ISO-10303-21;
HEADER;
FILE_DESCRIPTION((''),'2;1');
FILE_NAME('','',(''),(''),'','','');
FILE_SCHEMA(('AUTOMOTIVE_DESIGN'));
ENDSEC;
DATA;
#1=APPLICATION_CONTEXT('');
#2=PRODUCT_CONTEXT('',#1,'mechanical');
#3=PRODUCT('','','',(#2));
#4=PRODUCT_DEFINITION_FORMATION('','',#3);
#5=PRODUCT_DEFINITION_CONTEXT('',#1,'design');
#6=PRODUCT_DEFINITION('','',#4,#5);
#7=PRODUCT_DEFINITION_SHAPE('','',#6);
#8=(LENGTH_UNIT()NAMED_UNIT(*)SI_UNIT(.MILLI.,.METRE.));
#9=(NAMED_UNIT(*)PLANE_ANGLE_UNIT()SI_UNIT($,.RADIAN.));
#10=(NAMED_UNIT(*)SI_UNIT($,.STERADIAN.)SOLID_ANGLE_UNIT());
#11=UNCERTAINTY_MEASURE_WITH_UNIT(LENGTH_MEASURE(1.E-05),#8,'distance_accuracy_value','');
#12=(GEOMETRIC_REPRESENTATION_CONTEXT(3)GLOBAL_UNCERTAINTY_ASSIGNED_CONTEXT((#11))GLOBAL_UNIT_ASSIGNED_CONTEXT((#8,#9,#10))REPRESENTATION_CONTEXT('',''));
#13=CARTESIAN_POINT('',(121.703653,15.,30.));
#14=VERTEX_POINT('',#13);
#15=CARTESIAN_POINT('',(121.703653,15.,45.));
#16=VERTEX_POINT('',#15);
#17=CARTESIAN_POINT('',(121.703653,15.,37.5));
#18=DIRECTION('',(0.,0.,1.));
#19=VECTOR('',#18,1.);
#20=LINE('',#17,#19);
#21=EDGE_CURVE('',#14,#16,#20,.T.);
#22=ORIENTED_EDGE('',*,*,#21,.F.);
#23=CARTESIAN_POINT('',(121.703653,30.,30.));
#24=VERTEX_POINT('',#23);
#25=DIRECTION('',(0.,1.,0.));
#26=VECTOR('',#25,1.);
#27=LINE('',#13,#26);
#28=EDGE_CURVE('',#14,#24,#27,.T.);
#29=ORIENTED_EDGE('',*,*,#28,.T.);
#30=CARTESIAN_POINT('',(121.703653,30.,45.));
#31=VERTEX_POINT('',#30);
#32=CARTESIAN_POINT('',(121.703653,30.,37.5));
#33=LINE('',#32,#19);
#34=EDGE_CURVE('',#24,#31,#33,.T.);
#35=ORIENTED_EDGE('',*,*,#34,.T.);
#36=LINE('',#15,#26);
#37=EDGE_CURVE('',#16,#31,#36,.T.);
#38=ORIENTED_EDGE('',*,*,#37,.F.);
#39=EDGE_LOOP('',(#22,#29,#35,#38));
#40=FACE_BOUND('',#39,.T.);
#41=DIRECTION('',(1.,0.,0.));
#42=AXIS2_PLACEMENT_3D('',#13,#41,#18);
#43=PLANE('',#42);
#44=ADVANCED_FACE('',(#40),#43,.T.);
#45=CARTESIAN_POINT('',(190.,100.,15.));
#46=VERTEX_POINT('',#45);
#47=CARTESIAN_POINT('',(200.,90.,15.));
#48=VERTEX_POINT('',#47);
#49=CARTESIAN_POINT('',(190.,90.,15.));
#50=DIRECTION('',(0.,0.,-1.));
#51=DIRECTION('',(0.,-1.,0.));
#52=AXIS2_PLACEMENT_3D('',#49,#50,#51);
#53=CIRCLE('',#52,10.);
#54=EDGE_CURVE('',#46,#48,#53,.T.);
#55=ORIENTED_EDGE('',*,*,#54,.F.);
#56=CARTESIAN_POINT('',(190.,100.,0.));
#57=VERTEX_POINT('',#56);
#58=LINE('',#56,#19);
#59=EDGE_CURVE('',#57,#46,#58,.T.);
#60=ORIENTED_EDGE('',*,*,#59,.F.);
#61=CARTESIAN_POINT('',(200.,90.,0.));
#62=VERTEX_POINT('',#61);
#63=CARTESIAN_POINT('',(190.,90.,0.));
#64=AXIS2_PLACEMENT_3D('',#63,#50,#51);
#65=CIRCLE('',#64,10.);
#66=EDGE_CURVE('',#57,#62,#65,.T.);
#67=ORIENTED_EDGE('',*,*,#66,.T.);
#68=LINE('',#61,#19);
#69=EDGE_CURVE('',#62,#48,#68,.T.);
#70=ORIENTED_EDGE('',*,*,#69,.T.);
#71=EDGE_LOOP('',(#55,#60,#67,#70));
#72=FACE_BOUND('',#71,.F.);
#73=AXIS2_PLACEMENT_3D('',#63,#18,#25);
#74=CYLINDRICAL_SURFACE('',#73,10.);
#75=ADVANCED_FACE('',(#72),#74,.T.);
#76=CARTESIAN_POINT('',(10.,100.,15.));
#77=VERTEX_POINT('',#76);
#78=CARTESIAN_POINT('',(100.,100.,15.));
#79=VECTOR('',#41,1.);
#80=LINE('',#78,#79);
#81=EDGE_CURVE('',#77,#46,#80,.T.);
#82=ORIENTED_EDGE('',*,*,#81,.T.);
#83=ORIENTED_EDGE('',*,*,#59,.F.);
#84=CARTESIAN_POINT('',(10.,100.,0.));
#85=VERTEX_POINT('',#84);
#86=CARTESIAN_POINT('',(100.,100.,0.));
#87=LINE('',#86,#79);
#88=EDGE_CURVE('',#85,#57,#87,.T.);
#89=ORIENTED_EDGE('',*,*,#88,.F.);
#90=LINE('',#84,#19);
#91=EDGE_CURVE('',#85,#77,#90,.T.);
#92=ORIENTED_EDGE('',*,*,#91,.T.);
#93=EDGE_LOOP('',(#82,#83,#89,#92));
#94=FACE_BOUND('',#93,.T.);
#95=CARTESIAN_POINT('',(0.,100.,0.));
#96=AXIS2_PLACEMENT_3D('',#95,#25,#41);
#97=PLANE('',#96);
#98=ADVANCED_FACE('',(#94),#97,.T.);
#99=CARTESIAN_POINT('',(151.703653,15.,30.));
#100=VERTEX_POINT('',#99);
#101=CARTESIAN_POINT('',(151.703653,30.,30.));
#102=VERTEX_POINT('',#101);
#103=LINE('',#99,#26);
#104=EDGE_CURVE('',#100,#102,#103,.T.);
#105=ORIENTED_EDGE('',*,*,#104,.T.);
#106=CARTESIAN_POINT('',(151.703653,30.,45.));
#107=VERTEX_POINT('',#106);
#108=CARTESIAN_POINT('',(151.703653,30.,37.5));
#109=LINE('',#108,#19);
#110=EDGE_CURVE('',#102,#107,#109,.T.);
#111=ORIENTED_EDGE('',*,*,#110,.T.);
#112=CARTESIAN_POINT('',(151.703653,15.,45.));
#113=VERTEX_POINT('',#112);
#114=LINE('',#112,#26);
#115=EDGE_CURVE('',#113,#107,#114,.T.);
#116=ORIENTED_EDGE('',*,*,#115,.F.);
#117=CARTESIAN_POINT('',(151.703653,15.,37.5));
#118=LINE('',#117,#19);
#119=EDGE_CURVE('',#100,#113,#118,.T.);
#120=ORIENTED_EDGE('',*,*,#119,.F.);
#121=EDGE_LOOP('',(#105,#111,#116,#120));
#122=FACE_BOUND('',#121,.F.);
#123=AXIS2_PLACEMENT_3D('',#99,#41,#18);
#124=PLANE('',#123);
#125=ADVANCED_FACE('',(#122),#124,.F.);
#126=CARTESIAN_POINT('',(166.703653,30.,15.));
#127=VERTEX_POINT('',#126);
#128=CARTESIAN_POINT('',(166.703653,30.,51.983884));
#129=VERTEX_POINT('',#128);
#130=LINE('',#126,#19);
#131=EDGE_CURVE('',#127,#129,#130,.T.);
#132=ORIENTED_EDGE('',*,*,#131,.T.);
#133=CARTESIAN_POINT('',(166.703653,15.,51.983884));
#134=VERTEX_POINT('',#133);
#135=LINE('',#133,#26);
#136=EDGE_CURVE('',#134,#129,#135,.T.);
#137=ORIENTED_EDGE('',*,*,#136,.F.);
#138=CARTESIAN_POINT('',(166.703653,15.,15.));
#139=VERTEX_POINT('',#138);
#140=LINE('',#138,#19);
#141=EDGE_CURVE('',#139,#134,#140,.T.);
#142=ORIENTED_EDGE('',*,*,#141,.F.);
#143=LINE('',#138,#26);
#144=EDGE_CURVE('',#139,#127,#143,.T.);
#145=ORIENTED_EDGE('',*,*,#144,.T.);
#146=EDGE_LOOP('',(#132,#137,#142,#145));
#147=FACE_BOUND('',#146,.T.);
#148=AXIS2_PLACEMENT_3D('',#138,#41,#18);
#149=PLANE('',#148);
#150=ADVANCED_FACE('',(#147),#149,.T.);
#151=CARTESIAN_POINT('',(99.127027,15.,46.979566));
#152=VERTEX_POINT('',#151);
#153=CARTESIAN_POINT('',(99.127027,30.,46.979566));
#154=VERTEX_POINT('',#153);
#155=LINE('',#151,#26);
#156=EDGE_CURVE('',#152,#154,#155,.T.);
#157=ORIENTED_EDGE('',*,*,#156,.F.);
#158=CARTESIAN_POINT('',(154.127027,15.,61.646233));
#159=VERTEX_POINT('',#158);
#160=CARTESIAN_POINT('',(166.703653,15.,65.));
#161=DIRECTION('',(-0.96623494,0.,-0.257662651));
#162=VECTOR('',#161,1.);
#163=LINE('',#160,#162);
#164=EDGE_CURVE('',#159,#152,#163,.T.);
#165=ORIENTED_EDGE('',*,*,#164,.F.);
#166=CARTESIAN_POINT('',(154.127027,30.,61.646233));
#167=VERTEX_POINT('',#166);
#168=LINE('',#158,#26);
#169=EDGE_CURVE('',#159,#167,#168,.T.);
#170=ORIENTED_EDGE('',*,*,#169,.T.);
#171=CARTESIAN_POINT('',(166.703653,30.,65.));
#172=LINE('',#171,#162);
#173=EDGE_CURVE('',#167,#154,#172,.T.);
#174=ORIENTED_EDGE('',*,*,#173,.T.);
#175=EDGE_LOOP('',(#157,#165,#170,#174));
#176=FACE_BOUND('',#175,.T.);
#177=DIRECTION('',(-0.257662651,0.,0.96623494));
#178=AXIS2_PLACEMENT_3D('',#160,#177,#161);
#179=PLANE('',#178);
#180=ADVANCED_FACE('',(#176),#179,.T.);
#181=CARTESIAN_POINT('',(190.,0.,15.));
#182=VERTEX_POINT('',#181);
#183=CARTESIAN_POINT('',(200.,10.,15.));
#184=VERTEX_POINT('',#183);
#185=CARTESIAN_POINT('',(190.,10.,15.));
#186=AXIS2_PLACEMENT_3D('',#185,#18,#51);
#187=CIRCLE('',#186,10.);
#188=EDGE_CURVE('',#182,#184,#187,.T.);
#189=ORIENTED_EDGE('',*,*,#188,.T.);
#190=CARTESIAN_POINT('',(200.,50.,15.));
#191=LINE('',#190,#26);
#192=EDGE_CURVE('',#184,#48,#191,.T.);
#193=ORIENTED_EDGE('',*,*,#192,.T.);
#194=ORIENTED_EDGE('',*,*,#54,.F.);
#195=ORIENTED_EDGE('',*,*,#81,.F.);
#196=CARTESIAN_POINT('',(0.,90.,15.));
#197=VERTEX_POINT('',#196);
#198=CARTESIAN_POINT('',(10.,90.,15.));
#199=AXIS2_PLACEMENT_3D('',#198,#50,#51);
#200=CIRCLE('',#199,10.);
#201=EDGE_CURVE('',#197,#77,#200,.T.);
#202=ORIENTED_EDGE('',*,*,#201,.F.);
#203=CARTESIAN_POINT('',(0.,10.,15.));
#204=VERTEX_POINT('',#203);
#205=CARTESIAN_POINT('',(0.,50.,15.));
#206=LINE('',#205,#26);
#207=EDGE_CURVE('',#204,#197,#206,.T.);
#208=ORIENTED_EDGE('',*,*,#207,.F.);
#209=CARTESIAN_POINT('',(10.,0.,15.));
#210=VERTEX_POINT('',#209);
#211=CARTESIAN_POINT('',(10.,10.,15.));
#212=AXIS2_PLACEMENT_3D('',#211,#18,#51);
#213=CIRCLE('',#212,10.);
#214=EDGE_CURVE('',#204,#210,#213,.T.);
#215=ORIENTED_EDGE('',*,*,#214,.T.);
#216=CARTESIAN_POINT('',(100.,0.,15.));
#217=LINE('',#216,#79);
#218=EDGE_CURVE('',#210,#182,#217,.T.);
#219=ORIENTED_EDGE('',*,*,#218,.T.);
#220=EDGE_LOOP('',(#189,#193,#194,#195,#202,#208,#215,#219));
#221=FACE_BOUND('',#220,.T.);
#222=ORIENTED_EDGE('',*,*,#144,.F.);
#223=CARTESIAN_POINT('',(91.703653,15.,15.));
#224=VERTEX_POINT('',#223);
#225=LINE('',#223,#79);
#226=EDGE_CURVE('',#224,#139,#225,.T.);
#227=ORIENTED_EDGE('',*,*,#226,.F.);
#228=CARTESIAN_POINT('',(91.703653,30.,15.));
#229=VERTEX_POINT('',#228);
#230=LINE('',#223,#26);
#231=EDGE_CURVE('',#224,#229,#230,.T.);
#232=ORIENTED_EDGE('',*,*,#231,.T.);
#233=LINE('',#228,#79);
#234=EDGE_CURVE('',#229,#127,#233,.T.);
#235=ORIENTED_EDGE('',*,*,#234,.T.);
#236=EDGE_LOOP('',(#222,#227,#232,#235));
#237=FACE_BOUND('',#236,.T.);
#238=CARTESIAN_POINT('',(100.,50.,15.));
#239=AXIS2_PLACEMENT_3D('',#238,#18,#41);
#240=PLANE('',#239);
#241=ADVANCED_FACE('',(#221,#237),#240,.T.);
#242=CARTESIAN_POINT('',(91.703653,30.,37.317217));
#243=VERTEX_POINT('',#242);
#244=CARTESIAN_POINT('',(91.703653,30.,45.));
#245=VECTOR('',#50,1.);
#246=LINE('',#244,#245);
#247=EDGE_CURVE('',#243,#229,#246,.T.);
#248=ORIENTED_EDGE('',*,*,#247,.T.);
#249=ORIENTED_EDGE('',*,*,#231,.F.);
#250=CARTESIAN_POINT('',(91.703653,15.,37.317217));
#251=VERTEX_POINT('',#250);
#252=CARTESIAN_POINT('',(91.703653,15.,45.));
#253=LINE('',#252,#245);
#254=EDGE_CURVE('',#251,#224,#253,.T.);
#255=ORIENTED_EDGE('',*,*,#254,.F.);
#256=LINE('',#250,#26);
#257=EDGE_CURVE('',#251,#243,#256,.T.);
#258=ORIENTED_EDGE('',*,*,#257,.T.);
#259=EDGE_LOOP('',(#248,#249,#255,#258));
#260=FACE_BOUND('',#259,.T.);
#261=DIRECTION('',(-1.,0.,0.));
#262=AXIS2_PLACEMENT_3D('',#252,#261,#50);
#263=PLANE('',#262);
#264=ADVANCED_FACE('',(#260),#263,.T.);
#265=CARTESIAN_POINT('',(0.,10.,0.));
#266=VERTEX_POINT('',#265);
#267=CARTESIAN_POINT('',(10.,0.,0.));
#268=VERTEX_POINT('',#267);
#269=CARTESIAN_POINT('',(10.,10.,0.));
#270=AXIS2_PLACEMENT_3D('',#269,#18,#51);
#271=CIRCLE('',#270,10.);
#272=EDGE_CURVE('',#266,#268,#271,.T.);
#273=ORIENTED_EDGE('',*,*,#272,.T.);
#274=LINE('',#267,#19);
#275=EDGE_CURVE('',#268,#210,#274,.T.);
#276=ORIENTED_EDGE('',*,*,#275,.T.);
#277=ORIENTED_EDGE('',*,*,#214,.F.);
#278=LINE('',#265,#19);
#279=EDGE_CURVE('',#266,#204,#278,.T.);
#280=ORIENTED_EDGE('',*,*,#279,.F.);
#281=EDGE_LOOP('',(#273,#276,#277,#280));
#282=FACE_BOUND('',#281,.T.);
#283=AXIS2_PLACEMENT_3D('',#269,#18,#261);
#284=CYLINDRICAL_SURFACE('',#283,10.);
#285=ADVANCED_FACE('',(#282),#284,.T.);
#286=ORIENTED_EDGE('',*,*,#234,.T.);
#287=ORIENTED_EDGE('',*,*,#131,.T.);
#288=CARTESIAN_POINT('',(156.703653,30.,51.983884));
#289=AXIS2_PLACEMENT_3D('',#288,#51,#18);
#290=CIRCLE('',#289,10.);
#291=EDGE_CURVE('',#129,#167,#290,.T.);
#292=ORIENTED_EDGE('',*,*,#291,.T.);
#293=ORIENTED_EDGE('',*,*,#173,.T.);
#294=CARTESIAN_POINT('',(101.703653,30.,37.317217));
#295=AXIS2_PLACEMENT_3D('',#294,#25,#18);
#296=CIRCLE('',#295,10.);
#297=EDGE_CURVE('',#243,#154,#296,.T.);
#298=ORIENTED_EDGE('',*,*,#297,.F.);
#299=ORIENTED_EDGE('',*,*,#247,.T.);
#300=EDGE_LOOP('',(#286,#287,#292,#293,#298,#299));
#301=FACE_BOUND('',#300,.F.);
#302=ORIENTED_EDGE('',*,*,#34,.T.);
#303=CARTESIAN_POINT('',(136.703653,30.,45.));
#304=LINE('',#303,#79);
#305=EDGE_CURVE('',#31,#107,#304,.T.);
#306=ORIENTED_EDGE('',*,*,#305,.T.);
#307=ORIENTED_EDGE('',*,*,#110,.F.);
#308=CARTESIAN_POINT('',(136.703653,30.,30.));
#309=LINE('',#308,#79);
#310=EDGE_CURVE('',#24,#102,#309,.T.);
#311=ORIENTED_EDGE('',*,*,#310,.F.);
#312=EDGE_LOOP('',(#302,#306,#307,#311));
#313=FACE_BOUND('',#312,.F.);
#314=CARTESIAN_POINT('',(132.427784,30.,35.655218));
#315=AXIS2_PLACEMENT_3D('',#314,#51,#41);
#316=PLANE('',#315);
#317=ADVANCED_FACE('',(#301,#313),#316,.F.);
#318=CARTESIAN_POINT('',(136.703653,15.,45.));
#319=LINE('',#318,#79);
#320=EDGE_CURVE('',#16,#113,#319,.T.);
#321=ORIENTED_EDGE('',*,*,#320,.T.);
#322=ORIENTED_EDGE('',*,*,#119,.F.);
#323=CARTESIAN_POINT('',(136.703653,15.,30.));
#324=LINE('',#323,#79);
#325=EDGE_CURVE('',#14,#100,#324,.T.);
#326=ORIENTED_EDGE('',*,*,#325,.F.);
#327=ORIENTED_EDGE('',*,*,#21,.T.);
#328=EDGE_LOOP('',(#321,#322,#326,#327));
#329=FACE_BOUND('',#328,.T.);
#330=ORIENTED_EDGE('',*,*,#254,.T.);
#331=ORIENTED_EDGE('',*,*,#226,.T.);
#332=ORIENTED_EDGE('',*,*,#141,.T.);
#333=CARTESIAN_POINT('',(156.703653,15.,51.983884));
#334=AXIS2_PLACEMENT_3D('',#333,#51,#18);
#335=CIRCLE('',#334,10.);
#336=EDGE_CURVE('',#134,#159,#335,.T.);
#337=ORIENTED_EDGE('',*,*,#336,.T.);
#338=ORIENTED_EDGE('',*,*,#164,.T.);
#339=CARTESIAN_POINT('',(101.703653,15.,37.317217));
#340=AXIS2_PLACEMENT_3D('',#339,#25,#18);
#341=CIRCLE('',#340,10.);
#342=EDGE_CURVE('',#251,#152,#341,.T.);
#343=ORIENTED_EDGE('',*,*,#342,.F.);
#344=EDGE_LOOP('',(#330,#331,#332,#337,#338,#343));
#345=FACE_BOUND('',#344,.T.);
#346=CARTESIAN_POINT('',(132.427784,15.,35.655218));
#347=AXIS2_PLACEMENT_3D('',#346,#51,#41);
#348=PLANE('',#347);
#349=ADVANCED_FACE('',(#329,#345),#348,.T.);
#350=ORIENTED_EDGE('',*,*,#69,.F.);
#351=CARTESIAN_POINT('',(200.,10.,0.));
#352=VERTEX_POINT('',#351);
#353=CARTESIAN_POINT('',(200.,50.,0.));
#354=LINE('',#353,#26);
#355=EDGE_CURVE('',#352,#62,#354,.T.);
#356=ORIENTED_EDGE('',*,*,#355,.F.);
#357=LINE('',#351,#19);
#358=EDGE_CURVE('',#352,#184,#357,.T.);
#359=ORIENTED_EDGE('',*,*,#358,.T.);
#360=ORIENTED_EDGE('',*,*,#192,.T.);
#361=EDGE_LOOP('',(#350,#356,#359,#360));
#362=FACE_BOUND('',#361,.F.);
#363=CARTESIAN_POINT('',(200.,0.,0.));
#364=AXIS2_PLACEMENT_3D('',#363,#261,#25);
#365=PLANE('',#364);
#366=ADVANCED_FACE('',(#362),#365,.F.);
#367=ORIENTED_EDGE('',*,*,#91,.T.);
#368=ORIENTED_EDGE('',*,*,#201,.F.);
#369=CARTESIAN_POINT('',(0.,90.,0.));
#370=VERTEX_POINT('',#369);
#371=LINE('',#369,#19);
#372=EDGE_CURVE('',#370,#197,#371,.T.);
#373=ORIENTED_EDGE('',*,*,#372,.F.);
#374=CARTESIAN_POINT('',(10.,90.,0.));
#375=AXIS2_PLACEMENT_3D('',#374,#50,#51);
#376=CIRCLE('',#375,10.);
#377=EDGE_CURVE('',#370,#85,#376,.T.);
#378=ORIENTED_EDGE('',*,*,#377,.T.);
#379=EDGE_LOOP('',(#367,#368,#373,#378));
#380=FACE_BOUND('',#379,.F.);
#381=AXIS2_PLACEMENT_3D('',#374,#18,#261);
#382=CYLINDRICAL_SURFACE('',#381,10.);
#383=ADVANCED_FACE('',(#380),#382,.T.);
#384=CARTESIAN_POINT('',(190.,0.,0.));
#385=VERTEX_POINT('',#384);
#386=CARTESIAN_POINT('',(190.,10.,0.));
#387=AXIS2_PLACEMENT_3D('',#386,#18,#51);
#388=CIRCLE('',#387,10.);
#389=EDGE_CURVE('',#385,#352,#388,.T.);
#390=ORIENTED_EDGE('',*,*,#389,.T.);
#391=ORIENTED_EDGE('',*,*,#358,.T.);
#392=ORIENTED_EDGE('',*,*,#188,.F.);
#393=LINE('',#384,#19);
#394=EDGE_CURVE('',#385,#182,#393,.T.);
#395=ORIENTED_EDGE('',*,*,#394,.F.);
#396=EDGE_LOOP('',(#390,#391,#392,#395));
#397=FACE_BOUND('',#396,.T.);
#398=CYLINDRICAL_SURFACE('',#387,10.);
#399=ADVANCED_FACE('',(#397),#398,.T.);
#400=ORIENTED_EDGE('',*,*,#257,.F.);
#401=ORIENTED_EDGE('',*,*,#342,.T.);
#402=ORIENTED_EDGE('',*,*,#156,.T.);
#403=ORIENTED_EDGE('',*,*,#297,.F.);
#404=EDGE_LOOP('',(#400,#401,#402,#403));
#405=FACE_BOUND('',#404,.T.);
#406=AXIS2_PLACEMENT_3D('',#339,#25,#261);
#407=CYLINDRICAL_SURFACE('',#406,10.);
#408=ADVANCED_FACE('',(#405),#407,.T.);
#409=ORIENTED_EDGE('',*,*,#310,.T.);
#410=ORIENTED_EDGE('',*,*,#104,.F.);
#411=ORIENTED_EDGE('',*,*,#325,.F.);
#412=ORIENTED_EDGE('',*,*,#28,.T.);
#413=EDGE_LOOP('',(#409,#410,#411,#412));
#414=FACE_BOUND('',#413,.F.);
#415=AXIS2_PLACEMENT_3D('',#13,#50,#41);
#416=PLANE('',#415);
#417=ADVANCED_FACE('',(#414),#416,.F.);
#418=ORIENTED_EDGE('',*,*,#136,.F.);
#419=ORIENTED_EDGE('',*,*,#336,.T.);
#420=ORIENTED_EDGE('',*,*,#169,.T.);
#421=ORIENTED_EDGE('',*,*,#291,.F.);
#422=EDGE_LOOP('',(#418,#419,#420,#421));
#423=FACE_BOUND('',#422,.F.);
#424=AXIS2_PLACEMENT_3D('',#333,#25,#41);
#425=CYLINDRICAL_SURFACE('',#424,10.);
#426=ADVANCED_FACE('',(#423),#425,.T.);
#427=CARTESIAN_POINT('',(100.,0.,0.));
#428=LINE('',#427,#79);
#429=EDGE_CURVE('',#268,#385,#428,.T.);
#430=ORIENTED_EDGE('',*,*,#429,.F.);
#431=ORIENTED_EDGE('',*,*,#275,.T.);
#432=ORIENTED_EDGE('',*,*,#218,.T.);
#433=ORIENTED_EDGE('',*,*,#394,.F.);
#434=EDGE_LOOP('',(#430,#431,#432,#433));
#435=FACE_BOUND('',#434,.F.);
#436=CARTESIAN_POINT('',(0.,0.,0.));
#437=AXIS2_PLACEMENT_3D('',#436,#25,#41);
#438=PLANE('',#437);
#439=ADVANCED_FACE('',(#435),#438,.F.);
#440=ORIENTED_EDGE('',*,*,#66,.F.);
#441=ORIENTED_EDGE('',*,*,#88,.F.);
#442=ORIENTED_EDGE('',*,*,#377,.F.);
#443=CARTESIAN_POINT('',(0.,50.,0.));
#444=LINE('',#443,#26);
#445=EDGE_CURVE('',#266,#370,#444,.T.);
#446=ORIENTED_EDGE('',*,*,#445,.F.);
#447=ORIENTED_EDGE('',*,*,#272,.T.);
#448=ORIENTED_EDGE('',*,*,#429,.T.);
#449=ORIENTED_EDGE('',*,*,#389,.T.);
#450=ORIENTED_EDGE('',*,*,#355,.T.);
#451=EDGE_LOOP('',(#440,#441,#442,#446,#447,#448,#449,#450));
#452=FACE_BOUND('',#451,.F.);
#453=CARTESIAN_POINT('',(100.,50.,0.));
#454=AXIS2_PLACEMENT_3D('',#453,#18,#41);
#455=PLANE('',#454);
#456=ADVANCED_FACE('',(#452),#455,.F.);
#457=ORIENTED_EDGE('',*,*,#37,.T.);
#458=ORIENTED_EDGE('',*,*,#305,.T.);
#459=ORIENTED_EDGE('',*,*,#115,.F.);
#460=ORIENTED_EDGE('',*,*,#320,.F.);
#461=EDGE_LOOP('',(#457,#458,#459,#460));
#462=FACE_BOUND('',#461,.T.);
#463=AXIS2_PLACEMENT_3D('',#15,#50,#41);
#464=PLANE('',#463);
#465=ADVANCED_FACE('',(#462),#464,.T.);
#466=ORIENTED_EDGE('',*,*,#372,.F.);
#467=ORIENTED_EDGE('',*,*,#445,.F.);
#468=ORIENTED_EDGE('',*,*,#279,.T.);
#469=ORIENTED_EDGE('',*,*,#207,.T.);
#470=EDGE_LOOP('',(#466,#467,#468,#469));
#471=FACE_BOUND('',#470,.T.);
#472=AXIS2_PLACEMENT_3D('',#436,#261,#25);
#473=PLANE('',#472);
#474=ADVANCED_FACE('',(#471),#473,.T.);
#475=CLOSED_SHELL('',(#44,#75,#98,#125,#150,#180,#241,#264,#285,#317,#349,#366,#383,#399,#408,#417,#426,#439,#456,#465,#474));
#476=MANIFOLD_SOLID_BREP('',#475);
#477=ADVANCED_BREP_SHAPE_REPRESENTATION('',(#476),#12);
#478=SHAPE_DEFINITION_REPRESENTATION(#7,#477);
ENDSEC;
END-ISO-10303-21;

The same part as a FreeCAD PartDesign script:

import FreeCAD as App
import Part
import Sketcher

V = App.Vector


def edges_at(feature, points):
    """Names of the edges that pass closest to the given points."""
    edges = feature.Shape.Edges
    near = lambda p: min(range(len(edges)), key=lambda i: edges[i].distToShape(Part.Vertex(*p))[0])
    return sorted({f"Edge{near(p) + 1}" for p in points})

doc = App.newDocument("Part")
body = doc.addObject("PartDesign::Body", "Body")

# Sketch on XY plane
sketch1 = doc.addObject("Sketcher::SketchObject", "Sketch")
body.addObject(sketch1)
sketch1.AttachmentSupport = (doc.XY_Plane, [""])
sketch1.MapMode = "FlatFace"
sketch1.addGeometry([
    Part.LineSegment(V(0, 100, 0), V(0, 0, 0)),
    Part.LineSegment(V(0, 0, 0), V(200, 0, 0)),
    Part.LineSegment(V(200, 0, 0), V(200, 100, 0)),
    Part.LineSegment(V(200, 100, 0), V(0, 100, 0)),
], False)
sketch1.addConstraint([
    Sketcher.Constraint("Coincident", 0, 2, 1, 1),
    Sketcher.Constraint("Coincident", 1, 2, 2, 1),
    Sketcher.Constraint("Coincident", 2, 2, 3, 1),
    Sketcher.Constraint("Coincident", 3, 2, 0, 1),
    Sketcher.Constraint("Vertical", 0),
    Sketcher.Constraint("Horizontal", 1),
    Sketcher.Constraint("Vertical", 2),
    Sketcher.Constraint("Horizontal", 3),
    Sketcher.Constraint("Coincident", 0, 2, -1, 1),
    Sketcher.Constraint("DistanceX", 1, 1, 1, 2, 200.0),
    Sketcher.Constraint("DistanceY", 0, 2, 0, 1, 100.0),
])
pad1 = doc.addObject("PartDesign::Pad", "Pad")
body.addObject(pad1)
pad1.Profile = sketch1
pad1.Length = 15

# Sketch on XZ plane
sketch2 = doc.addObject("Sketcher::SketchObject", "Sketch001")
body.addObject(sketch2)
sketch2.AttachmentSupport = (doc.XZ_Plane, [""])
sketch2.MapMode = "FlatFace"
sketch2.AttachmentOffset = App.Placement(V(0, 0, -15), App.Rotation())
sketch2.addGeometry([
    Part.LineSegment(V(92, 15, 0), V(167, 15, 0)),  # 0
    Part.LineSegment(V(167, 15, 0), V(167, 65, 0)),  # 1
    Part.LineSegment(V(167, 65, 0), V(92, 45, 0)),  # 2
    Part.LineSegment(V(92, 45, 0), V(92, 15, 0)),  # 3
    Part.LineSegment(V(152, 30, 0), V(122, 30, 0)),  # 4
    Part.LineSegment(V(122, 30, 0), V(122, 45, 0)),  # 5
    Part.LineSegment(V(122, 45, 0), V(152, 45, 0)),  # 6
    Part.LineSegment(V(152, 45, 0), V(152, 30, 0)),  # 7
], False)
sketch2.addConstraint([
    Sketcher.Constraint("Coincident", 0, 2, 1, 1),
    Sketcher.Constraint("Coincident", 1, 2, 2, 1),
    Sketcher.Constraint("Coincident", 2, 2, 3, 1),
    Sketcher.Constraint("Coincident", 3, 2, 0, 1),
    Sketcher.Constraint("Coincident", 4, 2, 5, 1),
    Sketcher.Constraint("Coincident", 5, 2, 6, 1),
    Sketcher.Constraint("Coincident", 6, 2, 7, 1),
    Sketcher.Constraint("Coincident", 7, 2, 4, 1),
    Sketcher.Constraint("Horizontal", 0),
    Sketcher.Constraint("Vertical", 1),
    Sketcher.Constraint("Vertical", 3),
    Sketcher.Constraint("Horizontal", 4),
    Sketcher.Constraint("Vertical", 5),
    Sketcher.Constraint("Horizontal", 6),
    Sketcher.Constraint("Vertical", 7),
    Sketcher.Constraint("Horizontal", 2, 2, 5, 2),
    Sketcher.Constraint("Equal", 6, 3),
    Sketcher.Constraint("DistanceX", 0, 1, 0, 2, 75.0),
    Sketcher.Constraint("DistanceX", 4, 2, 4, 1, 30.0),
    Sketcher.Constraint("DistanceY", 1, 1, 1, 2, 50.0),
    Sketcher.Constraint("DistanceY", 5, 1, 5, 2, 15.0),
    Sketcher.Constraint("DistanceY", -1, 1, 0, 2, 15.0),
    Sketcher.Constraint("DistanceX", 2, 2, 4, 2, 30.0),
    Sketcher.Constraint("DistanceX", -1, 1, 0, 2, 166.703653),
])
pad2 = doc.addObject("PartDesign::Pad", "Pad001")
body.addObject(pad2)
pad2.Profile = sketch2
pad2.Length = 15
pad2.Reversed = True
doc.recompute()

fillet = doc.addObject("PartDesign::Fillet", "Fillet")
body.addObject(fillet)
fillet.Base = (pad2, edges_at(pad2, [
    (200, 0, 7.5),
    (200, 100, 7.5),
    (0, 0, 7.5),
    (0, 100, 7.5),
    (91.704, 22.5, 45),
    (166.704, 22.5, 65),
]))
fillet.Radius = 10

doc.recompute()
